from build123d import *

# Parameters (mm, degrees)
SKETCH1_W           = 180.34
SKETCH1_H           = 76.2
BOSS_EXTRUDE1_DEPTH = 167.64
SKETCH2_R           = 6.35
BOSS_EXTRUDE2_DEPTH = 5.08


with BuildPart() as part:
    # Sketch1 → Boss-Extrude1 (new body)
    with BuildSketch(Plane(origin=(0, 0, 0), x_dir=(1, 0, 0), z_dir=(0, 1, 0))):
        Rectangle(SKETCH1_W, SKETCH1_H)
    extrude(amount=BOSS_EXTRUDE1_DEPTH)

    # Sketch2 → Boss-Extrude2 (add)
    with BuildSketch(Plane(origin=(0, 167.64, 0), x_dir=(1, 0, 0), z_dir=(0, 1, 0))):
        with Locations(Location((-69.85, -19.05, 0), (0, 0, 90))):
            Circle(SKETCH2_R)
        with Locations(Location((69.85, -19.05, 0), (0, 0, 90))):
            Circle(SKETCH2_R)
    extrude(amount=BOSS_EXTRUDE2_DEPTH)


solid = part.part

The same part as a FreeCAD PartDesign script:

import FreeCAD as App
import Part
import Sketcher
Q = App.Units.Quantity

doc = App.newDocument("Part")
body = doc.addObject("PartDesign::Body", "Body")

sketch1 = body.newObject("Sketcher::SketchObject", "Sketch")
sketch1.AttachmentSupport = (doc.getObject("XZ_Plane"), [""])
sketch1.MapMode = "FlatFace"
sketch1.addGeometry(Part.LineSegment(App.Vector(-90, -38, 0), App.Vector(-90, 38, 0)), False)
sketch1.addGeometry(Part.LineSegment(App.Vector(-90, 38, 0), App.Vector(90, 38, 0)), False)
sketch1.addGeometry(Part.LineSegment(App.Vector(90, 38, 0), App.Vector(90, -38, 0)), False)
sketch1.addGeometry(Part.LineSegment(App.Vector(90, -38, 0), App.Vector(-90, -38, 0)), False)
sketch1.addConstraint(Sketcher.Constraint("Coincident", 0, 2, 1, 1))
sketch1.addConstraint(Sketcher.Constraint("Coincident", 1, 2, 2, 1))
sketch1.addConstraint(Sketcher.Constraint("Coincident", 2, 2, 3, 1))
sketch1.addConstraint(Sketcher.Constraint("Coincident", 3, 2, 0, 1))
sketch1.addConstraint(Sketcher.Constraint("Vertical", 0))
sketch1.addConstraint(Sketcher.Constraint("Horizontal", 1))
sketch1.addConstraint(Sketcher.Constraint("Vertical", 2))
sketch1.addConstraint(Sketcher.Constraint("Horizontal", 3))
sketch1.addConstraint(Sketcher.Constraint("Symmetric", 0, 2, 2, 2, -1, 1))
sketch1.addConstraint(Sketcher.Constraint("DistanceY", 0, 1, 0, 2, Q("3 in")))
sketch1.addConstraint(Sketcher.Constraint("DistanceX", 1, 1, 1, 2, Q("7.1 in")))
pad1 = body.newObject("PartDesign::Pad", "Pad")
pad1.Profile = sketch1
pad1.Length = Q("6.6 in")
pad1.Reversed = True

sketch2 = body.newObject("Sketcher::SketchObject", "Sketch001")
sketch2.AttachmentSupport = (doc.getObject("XZ_Plane"), [""])
sketch2.MapMode = "FlatFace"
sketch2.AttachmentOffset = App.Placement(App.Vector(0, 0, -6.6 * 25.4), App.Rotation())
sketch2.addGeometry(Part.Circle(App.Vector(-70, 19, 0), App.Vector(0, 0, 1), 6), False)
sketch2.addGeometry(Part.Circle(App.Vector(70, 19, 0), App.Vector(0, 0, 1), 6), False)
sketch2.addConstraint(Sketcher.Constraint("Equal", 0, 1))
sketch2.addConstraint(Sketcher.Constraint("Symmetric", 0, 3, 1, 3, -2))
sketch2.addConstraint(Sketcher.Constraint("Diameter", 0, Q("0.5 in")))
sketch2.addConstraint(Sketcher.Constraint("DistanceX", 0, 3, 1, 3, Q("5.5 in")))
sketch2.addConstraint(Sketcher.Constraint("DistanceY", -1, 1, 0, 3, Q("0.75 in")))
pad2 = body.newObject("PartDesign::Pad", "Pad001")
pad2.Profile = sketch2
pad2.Length = Q("0.2 in")
pad2.Reversed = True

doc.recompute()
